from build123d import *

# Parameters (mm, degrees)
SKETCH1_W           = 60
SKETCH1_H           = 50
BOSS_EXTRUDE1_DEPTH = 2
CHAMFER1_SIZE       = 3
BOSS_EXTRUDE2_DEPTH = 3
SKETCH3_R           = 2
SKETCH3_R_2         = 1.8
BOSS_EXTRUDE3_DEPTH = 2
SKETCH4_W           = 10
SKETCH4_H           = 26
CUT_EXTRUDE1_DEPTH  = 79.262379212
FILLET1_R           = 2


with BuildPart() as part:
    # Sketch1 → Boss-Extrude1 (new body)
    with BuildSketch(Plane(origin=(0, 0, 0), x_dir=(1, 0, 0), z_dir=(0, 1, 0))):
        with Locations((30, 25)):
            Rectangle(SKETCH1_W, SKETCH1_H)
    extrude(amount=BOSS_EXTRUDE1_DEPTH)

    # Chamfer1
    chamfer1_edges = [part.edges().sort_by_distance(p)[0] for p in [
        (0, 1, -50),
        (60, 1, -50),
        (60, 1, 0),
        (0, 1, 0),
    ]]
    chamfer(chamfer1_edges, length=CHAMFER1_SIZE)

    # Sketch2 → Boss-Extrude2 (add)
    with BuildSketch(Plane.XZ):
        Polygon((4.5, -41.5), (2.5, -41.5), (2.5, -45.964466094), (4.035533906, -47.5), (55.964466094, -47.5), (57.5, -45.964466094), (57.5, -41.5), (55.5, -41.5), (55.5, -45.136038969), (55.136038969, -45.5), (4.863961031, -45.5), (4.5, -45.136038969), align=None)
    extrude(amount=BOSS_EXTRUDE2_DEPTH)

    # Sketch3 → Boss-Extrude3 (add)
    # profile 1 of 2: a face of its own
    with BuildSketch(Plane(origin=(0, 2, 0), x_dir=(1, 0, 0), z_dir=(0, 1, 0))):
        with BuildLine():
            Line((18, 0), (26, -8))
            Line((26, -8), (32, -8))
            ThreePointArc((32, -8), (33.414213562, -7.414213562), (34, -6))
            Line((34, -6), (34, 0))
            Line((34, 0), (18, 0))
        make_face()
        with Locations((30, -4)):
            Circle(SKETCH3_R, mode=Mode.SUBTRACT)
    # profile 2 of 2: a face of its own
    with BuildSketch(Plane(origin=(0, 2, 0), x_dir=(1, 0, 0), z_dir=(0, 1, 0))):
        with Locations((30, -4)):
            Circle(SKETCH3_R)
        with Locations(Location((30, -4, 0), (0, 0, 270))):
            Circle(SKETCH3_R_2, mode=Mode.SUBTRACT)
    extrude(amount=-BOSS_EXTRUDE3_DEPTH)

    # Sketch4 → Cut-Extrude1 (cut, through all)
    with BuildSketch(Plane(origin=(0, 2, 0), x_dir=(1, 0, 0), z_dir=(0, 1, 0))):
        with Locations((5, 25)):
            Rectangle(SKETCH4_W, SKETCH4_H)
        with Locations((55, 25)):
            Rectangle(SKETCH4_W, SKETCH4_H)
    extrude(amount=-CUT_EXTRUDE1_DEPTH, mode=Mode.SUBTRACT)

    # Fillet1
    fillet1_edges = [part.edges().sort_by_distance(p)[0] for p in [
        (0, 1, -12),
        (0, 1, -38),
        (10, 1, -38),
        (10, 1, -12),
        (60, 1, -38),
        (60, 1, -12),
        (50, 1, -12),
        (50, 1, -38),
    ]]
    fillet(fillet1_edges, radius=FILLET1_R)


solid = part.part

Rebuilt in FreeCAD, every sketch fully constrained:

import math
import FreeCAD as App
import Part
import Sketcher


def edges_at(feature, points):
    """Names of the edges that pass closest to the given points."""
    edges = feature.Shape.Edges
    near = lambda p: min(range(len(edges)), key=lambda i: edges[i].distToShape(Part.Vertex(*p))[0])
    return sorted({f"Edge{near(p) + 1}" for p in points})


def add_polygon(sketch, points):
    """Adds a closed chain of lines whose ends are joined by coincident constraints."""
    first, n = sketch.GeometryCount, len(points)
    for a, b in zip(points, points[1:] + points[:1]):
        sketch.addGeometry(Part.LineSegment(App.Vector(*a, 0), App.Vector(*b, 0)), False)
    for i in range(n):
        sketch.addConstraint(Sketcher.Constraint("Coincident", first + i, 2, first + (i + 1) % n, 1))

doc = App.newDocument("Part")
body = doc.addObject("PartDesign::Body", "Body")

sketch1 = body.newObject("Sketcher::SketchObject", "Sketch")
sketch1.AttachmentSupport = (doc.getObject("XZ_Plane"), [""])
sketch1.MapMode = "FlatFace"
add_polygon(sketch1, [(0, -50), (0, 0), (60, 0), (60, -50)])
sketch1.addConstraint(Sketcher.Constraint("Vertical", 0))
sketch1.addConstraint(Sketcher.Constraint("Horizontal", 1))
sketch1.addConstraint(Sketcher.Constraint("Vertical", 2))
sketch1.addConstraint(Sketcher.Constraint("Horizontal", 3))
sketch1.addConstraint(Sketcher.Constraint("Coincident", 0, 2, -1, 1))
sketch1.addConstraint(Sketcher.Constraint("DistanceX", 1, 1, 1, 2, 60.0))
sketch1.addConstraint(Sketcher.Constraint("DistanceY", 0, 1, 0, 2, 50.0))
pad1 = body.newObject("PartDesign::Pad", "Pad")
pad1.Profile = sketch1
pad1.Length = 2
pad1.Reversed = True
doc.recompute()

chamfer = body.newObject("PartDesign::Chamfer", "Chamfer")
chamfer.Base = (pad1, edges_at(pad1, [
    (0, 1, -50),
    (60, 1, -50),
    (60, 1, 0),
    (0, 1, 0),
]))
chamfer.Size = 3

sketch2 = body.newObject("Sketcher::SketchObject", "Sketch001")
sketch2.AttachmentSupport = (doc.getObject("XZ_Plane"), [""])
sketch2.MapMode = "FlatFace"
add_polygon(sketch2, [(4.5, -41.5), (2.5, -41.5), (2.5, -45.964466), (4.035534, -47.5), (55.964466, -47.5), (57.5, -45.964466), (57.5, -41.5), (55.5, -41.5), (55.5, -45.136039), (55.136039, -45.5), (4.863961, -45.5), (4.5, -45.136039)])
sketch2.addConstraint(Sketcher.Constraint("Horizontal", 0))
sketch2.addConstraint(Sketcher.Constraint("Vertical", 1))
sketch2.addConstraint(Sketcher.Constraint("Horizontal", 3))
sketch2.addConstraint(Sketcher.Constraint("Vertical", 5))
sketch2.addConstraint(Sketcher.Constraint("Horizontal", 6))
sketch2.addConstraint(Sketcher.Constraint("Vertical", 7))
sketch2.addConstraint(Sketcher.Constraint("Horizontal", 9))
sketch2.addConstraint(Sketcher.Constraint("Vertical", 11))
sketch2.addConstraint(Sketcher.Constraint("Perpendicular", 2, 4))
sketch2.addConstraint(Sketcher.Constraint("Parallel", 4, 8))
sketch2.addConstraint(Sketcher.Constraint("Perpendicular", 8, 10))
sketch2.addConstraint(Sketcher.Constraint("Horizontal", 1, 2, 4, 2))
sketch2.addConstraint(Sketcher.Constraint("Horizontal", 0, 2, 5, 2))
sketch2.addConstraint(Sketcher.Constraint("Horizontal", 7, 2, 10, 2))
sketch2.addConstraint(Sketcher.Constraint("Equal", 0, 6))
sketch2.addConstraint(Sketcher.Constraint("Equal", 2, 4))
sketch2.addConstraint(Sketcher.Constraint("DistanceX", 0, 2, 0, 1, 2.0))
sketch2.addConstraint(Sketcher.Constraint("DistanceY", 2, 2, 0, 2, 6.0))
sketch2.addConstraint(Sketcher.Constraint("DistanceX", 1, 2, 4, 2, 55.0))
sketch2.addConstraint(Sketcher.Constraint("DistanceY", 3, 2, 8, 2, 2.0))
sketch2.addConstraint(Sketcher.Constraint("DistanceX", -1, 1, 0, 2, 2.5))
sketch2.addConstraint(Sketcher.Constraint("DistanceY", 0, 2, -1, 1, 41.5))
sketch2.addConstraint(Sketcher.Constraint("DistanceY", 7, 2, 7, 1, 3.636039))
sketch2.addConstraint(Sketcher.Constraint("DistanceX", 3, 1, 3, 2, 51.928932))
pad2 = body.newObject("PartDesign::Pad", "Pad001")
pad2.Profile = sketch2
pad2.Length = 3

sketch3 = body.newObject("Sketcher::SketchObject", "Sketch002")
sketch3.AttachmentSupport = (doc.getObject("XZ_Plane"), [""])
sketch3.MapMode = "FlatFace"
sketch3.AttachmentOffset = App.Placement(App.Vector(0, 0, -2), App.Rotation())
sketch3.addGeometry(Part.LineSegment(App.Vector(18, 0, 0), App.Vector(26, 8, 0)), False)
sketch3.addGeometry(Part.LineSegment(App.Vector(26, 8, 0), App.Vector(32, 8, 0)), False)
sketch3.addGeometry(Part.ArcOfCircle(Part.Circle(App.Vector(32, 6, 0), App.Vector(0, 0, 1), 2), math.radians(0), math.radians(90)), False)
sketch3.addGeometry(Part.LineSegment(App.Vector(34, 6, 0), App.Vector(34, 0, 0)), False)
sketch3.addGeometry(Part.LineSegment(App.Vector(34, 0, 0), App.Vector(18, 0, 0)), False)
sketch3.addGeometry(Part.Circle(App.Vector(30, 4, 0), App.Vector(0, 0, 1), 1.8), False)
sketch3.addConstraint(Sketcher.Constraint("Coincident", 0, 2, 1, 1))
sketch3.addConstraint(Sketcher.Constraint("Tangent", 1, 2, 2, 2))
sketch3.addConstraint(Sketcher.Constraint("Tangent", 2, 1, 3, 1))
sketch3.addConstraint(Sketcher.Constraint("Coincident", 3, 2, 4, 1))
sketch3.addConstraint(Sketcher.Constraint("Coincident", 4, 2, 0, 1))
sketch3.addConstraint(Sketcher.Constraint("Horizontal", 1))
sketch3.addConstraint(Sketcher.Constraint("Vertical", 3))
sketch3.addConstraint(Sketcher.Constraint("Horizontal", 4))
sketch3.addConstraint(Sketcher.Constraint("PointOnObject", 3, 2, -1))
sketch3.addConstraint(Sketcher.Constraint("Equal", 1, 3))
sketch3.addConstraint(Sketcher.Constraint("Radius", 2, 2.0))
sketch3.addConstraint(Sketcher.Constraint("Diameter", 5, 3.6))
sketch3.addConstraint(Sketcher.Constraint("DistanceX", 1, 1, 1, 2, 6.0))
sketch3.addConstraint(Sketcher.Constraint("DistanceX", 4, 2, 4, 1, 16.0))
sketch3.addConstraint(Sketcher.Constraint("DistanceX", -1, 1, 2, 3, 32.0))
sketch3.addConstraint(Sketcher.Constraint("DistanceX", -1, 1, 5, 3, 30.0))
sketch3.addConstraint(Sketcher.Constraint("DistanceY", -1, 1, 5, 3, 4.0))
pad3 = body.newObject("PartDesign::Pad", "Pad002")
pad3.Profile = sketch3
pad3.Length = 2

sketch4 = body.newObject("Sketcher::SketchObject", "Sketch003")
sketch4.AttachmentSupport = (doc.getObject("XZ_Plane"), [""])
sketch4.MapMode = "FlatFace"
sketch4.AttachmentOffset = App.Placement(App.Vector(0, 0, -2), App.Rotation())
add_polygon(sketch4, [(0, -38), (0, -12), (10, -12), (10, -38)])
add_polygon(sketch4, [(50, -38), (50, -12), (60, -12), (60, -38)])
sketch4.addConstraint(Sketcher.Constraint("Vertical", 0))
sketch4.addConstraint(Sketcher.Constraint("Horizontal", 1))
sketch4.addConstraint(Sketcher.Constraint("Vertical", 2))
sketch4.addConstraint(Sketcher.Constraint("Horizontal", 3))
sketch4.addConstraint(Sketcher.Constraint("Vertical", 4))
sketch4.addConstraint(Sketcher.Constraint("Horizontal", 5))
sketch4.addConstraint(Sketcher.Constraint("Vertical", 6))
sketch4.addConstraint(Sketcher.Constraint("Horizontal", 7))
sketch4.addConstraint(Sketcher.Constraint("PointOnObject", 0, 2, -2))
sketch4.addConstraint(Sketcher.Constraint("Horizontal", 1, 2, 4, 2))
sketch4.addConstraint(Sketcher.Constraint("Horizontal", 3, 2, 6, 2))
sketch4.addConstraint(Sketcher.Constraint("Equal", 3, 5))
sketch4.addConstraint(Sketcher.Constraint("DistanceX", 1, 1, 1, 2, 10.0))
sketch4.addConstraint(Sketcher.Constraint("DistanceY", 0, 1, 0, 2, 26.0))
sketch4.addConstraint(Sketcher.Constraint("DistanceY", 0, 2, -1, 1, 12.0))
sketch4.addConstraint(Sketcher.Constraint("DistanceX", -1, 1, 4, 2, 50.0))
pocket1 = body.newObject("PartDesign::Pocket", "Pocket")
pocket1.Profile = sketch4
pocket1.Type = "ThroughAll"
pocket1.Reversed = True
doc.recompute()

fillet = body.newObject("PartDesign::Fillet", "Fillet")
fillet.Base = (pocket1, edges_at(pocket1, [
    (0, 1, -12),
    (0, 1, -38),
    (10, 1, -38),
    (10, 1, -12),
    (60, 1, -38),
    (60, 1, -12),
    (50, 1, -12),
    (50, 1, -38),
]))
fillet.Radius = 2

doc.recompute()
